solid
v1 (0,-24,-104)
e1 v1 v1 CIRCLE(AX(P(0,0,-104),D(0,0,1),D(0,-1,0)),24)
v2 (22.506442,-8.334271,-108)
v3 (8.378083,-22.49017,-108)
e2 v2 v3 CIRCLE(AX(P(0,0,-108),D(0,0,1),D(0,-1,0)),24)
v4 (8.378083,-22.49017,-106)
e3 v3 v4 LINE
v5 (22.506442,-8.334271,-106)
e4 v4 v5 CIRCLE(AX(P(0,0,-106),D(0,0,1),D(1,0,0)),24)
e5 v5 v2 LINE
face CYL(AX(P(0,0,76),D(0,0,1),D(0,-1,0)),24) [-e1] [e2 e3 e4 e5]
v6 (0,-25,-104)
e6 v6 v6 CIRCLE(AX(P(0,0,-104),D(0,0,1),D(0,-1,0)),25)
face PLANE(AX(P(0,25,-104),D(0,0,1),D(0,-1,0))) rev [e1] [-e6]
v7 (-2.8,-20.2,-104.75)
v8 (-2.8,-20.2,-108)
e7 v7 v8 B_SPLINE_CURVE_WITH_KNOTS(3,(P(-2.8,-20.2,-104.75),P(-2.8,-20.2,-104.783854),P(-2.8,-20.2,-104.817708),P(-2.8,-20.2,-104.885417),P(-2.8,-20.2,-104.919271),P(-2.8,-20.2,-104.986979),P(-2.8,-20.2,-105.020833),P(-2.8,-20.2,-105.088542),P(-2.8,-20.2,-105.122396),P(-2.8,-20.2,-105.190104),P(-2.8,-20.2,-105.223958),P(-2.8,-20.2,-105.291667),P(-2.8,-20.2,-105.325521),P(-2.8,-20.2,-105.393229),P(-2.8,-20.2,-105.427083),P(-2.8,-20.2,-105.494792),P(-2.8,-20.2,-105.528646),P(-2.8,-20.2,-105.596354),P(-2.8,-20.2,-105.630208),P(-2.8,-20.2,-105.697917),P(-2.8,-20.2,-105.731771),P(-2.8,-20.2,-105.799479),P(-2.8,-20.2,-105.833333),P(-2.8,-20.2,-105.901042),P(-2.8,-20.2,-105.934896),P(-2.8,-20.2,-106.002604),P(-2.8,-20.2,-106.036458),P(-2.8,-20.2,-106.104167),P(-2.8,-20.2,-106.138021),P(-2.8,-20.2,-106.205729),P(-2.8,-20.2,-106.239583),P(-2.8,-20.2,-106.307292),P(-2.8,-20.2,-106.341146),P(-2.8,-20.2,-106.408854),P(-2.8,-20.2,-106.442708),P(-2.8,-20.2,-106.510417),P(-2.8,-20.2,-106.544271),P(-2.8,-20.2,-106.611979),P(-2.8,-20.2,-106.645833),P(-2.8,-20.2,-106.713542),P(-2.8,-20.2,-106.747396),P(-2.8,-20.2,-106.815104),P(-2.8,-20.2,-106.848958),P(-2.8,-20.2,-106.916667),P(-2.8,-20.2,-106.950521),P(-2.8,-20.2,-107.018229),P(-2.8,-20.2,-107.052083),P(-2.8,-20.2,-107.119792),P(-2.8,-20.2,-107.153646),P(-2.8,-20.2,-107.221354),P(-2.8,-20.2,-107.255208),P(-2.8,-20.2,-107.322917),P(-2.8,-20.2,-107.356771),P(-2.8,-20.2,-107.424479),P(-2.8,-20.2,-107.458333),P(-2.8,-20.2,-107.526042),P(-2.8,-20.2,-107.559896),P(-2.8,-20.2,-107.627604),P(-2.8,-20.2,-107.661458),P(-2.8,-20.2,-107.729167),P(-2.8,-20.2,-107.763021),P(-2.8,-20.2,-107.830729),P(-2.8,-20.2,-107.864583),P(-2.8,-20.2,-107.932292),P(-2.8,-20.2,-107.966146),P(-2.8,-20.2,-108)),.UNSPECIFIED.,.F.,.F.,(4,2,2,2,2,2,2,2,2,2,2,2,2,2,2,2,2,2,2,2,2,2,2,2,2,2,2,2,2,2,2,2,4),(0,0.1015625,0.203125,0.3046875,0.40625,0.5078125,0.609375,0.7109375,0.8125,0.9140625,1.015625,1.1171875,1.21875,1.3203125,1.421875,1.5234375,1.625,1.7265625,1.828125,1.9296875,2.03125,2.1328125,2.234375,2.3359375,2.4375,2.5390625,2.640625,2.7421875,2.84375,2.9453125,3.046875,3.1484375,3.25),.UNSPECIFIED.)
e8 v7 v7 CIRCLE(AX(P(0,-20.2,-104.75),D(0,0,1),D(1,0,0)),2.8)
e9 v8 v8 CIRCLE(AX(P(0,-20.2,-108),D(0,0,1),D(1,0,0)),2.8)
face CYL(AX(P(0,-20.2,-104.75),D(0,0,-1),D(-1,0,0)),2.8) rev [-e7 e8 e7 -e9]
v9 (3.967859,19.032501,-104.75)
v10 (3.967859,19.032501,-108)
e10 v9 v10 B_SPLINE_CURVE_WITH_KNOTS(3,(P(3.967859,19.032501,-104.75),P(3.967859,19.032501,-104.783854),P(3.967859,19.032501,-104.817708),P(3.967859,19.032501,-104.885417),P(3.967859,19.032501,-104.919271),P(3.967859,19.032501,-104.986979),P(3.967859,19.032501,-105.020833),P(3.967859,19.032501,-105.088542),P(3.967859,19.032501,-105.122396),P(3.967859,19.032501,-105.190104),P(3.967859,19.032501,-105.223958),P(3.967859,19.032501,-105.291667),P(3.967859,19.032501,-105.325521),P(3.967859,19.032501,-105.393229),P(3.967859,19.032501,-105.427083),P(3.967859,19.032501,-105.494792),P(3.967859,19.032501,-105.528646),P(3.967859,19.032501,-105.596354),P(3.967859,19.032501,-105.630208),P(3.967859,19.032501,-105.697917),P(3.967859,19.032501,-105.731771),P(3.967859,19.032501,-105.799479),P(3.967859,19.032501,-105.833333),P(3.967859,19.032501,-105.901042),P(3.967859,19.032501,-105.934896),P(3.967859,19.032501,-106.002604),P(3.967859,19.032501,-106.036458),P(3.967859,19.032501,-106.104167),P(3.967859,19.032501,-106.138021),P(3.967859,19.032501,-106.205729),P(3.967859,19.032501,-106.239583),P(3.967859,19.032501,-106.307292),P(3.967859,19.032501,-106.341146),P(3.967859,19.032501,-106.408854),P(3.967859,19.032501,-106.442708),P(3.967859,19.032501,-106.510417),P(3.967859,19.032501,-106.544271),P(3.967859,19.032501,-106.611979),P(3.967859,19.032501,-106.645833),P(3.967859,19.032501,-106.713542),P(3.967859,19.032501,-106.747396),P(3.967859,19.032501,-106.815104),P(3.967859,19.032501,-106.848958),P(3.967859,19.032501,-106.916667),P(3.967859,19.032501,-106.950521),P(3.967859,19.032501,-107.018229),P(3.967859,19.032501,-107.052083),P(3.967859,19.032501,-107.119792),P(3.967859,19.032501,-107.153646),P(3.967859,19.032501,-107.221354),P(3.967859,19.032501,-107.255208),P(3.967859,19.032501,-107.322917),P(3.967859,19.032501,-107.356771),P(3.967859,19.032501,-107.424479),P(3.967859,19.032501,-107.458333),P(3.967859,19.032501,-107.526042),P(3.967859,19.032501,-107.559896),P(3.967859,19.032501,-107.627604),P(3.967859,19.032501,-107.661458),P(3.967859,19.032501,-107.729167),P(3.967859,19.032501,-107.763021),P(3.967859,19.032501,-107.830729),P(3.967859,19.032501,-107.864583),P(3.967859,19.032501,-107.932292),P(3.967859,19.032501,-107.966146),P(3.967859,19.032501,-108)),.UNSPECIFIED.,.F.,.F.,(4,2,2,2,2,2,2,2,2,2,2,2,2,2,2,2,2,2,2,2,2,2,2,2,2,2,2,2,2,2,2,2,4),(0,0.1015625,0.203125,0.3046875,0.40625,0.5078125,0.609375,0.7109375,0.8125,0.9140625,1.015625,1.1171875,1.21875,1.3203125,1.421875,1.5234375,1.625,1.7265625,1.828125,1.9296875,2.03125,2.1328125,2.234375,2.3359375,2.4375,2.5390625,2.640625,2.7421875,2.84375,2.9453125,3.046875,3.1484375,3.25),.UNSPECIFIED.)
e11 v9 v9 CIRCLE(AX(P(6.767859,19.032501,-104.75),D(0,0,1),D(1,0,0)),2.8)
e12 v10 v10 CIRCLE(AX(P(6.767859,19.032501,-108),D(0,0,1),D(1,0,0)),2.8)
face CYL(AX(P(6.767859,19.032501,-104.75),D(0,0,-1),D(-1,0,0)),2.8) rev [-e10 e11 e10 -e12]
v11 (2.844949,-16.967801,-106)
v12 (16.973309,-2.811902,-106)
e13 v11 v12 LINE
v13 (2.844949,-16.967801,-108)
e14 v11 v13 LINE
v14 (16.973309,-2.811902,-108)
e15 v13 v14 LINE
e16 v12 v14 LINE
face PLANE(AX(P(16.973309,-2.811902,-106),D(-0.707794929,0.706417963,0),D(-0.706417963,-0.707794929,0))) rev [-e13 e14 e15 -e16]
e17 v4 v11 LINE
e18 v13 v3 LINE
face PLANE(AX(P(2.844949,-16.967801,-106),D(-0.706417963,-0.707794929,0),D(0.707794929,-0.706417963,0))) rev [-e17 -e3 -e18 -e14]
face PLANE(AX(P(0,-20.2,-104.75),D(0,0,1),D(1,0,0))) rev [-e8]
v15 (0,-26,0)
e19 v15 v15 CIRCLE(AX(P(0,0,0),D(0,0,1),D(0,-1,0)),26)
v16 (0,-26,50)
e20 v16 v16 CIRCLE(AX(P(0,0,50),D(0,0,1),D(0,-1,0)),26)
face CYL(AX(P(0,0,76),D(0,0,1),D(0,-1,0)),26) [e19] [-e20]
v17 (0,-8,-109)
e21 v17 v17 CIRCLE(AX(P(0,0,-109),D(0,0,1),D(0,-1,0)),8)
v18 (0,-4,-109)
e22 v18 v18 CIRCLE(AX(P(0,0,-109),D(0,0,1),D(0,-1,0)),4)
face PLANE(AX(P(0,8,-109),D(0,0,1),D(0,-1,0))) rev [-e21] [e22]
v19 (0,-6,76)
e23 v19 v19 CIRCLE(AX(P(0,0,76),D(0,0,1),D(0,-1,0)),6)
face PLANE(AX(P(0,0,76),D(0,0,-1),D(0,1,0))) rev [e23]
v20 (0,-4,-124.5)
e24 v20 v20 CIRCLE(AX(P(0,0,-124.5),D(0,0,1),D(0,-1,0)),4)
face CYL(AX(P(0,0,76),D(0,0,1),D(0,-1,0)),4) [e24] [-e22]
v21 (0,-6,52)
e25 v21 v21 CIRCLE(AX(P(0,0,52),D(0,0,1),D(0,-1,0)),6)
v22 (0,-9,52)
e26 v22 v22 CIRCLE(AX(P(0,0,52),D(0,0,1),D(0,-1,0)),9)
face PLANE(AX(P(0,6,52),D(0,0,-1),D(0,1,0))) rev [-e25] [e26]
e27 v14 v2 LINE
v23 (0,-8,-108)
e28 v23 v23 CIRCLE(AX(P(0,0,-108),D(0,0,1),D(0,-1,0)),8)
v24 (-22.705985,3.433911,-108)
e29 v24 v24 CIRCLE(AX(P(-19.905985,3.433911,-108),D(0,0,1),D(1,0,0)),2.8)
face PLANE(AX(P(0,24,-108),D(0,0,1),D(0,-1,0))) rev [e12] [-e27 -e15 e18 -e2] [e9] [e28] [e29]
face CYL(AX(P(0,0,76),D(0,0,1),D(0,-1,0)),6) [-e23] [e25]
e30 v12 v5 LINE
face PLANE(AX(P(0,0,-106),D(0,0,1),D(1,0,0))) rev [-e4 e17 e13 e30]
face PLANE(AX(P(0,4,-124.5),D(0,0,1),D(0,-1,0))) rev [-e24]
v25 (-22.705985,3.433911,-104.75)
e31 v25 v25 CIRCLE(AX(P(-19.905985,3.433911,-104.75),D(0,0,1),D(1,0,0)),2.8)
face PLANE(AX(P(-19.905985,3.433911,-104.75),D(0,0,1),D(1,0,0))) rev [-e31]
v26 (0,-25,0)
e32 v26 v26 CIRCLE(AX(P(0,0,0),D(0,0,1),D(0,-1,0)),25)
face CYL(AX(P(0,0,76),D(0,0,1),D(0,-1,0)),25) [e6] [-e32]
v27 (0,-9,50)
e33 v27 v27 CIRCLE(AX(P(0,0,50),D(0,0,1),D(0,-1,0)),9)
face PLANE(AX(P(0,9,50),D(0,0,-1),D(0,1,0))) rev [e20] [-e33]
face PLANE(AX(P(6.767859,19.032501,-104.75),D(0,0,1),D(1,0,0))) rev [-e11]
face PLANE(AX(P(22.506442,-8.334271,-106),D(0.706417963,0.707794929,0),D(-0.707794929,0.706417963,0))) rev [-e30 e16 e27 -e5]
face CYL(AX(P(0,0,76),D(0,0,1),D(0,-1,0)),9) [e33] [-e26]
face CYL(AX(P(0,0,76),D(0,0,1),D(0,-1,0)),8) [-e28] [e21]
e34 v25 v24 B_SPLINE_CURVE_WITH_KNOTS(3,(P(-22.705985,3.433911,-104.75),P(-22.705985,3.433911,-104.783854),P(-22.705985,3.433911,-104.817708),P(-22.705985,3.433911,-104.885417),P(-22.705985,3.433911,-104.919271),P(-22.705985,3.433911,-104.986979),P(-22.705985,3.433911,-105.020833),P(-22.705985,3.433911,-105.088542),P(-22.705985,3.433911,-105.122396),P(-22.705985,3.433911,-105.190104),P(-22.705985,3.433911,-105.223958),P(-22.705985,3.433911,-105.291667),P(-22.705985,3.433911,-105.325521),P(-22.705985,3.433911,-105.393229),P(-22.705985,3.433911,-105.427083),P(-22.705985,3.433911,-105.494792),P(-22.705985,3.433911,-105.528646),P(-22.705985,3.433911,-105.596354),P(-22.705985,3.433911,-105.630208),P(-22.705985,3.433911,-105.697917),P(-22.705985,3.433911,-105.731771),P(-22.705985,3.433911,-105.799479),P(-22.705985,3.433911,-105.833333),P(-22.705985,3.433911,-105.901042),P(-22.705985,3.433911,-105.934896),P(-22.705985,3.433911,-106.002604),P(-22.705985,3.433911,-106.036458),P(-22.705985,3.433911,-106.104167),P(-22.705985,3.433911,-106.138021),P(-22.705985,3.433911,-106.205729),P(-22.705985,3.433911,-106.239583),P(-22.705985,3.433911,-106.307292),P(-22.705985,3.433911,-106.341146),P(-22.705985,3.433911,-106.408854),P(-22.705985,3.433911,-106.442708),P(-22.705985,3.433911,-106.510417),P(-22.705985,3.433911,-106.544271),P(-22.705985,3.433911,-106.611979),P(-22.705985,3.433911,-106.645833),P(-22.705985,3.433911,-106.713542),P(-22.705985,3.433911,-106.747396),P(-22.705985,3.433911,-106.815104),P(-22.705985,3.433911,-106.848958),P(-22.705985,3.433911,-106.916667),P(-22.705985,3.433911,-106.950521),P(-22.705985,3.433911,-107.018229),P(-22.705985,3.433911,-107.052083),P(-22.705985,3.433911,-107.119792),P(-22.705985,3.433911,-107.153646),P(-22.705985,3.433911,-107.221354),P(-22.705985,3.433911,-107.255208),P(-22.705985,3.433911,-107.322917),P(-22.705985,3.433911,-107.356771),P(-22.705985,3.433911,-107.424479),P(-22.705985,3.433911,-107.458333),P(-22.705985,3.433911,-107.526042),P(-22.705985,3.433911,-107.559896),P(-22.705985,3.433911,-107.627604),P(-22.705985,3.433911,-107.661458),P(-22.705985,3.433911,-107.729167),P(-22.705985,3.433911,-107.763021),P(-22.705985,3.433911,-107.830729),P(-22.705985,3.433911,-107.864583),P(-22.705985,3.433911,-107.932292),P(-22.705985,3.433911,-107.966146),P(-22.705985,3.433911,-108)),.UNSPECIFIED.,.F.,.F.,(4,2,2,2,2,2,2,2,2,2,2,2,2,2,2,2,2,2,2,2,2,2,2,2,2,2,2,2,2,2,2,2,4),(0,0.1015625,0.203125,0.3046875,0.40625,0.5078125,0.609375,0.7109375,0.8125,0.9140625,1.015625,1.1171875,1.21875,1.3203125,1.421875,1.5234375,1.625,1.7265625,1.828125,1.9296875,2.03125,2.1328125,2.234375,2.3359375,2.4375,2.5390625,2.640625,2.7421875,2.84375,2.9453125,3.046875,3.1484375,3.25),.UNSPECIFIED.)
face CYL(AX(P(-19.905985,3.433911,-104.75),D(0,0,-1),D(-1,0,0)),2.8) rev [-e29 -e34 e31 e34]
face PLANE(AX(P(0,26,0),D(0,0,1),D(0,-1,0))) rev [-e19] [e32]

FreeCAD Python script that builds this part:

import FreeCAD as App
import Part
import Sketcher

V = App.Vector
Q = App.Units.Quantity


def add_polygon(sketch, points):
    """Adds a closed chain of lines whose ends are joined by coincident constraints."""
    first, n = sketch.GeometryCount, len(points)
    for a, b in zip(points, points[1:] + points[:1]):
        sketch.addGeometry(Part.LineSegment(App.Vector(*a, 0), App.Vector(*b, 0)), False)
    for i in range(n):
        sketch.addConstraint(Sketcher.Constraint("Coincident", first + i, 2, first + (i + 1) % n, 1))

doc = App.newDocument("Part")
params = doc.addObject("Spreadsheet::Sheet", "Params")
for row, (alias, value) in enumerate([
    ("sketch1_width", "4 mm"),
    ("sketch1_width2", "16 mm"),
    ("sketch1_width3", "1 mm"),
    ("sketch1_width4", "17 mm"),
    ("sketch1_width5", "3 mm"),
    ("revolution_angle", "360 deg"),
    ("sketch2_diameter", "5.6 mm"),
    ("pocket1_length", "3.25 mm"),
    ("sketch3_length", "20 mm"),
    ("pocket2_length", "2 mm"),
], start=1):
    params.set(f"A{row}", alias)
    params.set(f"B{row}", "=" + value)
    params.setAlias(f"B{row}", alias)

body = doc.addObject("PartDesign::Body", "Body")

sketch1 = body.newObject("Sketcher::SketchObject", "Sketch")
sketch1.AttachmentSupport = (doc.getObject("YZ_Plane"), [""])
sketch1.MapMode = "FlatFace"
add_polygon(sketch1, [(0, 76), (0, -124.5), (4, -124.5), (4, -109), (8, -109), (8, -108), (24, -108), (24, -104), (25, -104), (25, 0), (26, 0), (26, 50), (9, 50), (9, 52), (6, 52), (6, 76)])
sketch1.addConstraint(Sketcher.Constraint("Vertical", 0))
sketch1.addConstraint(Sketcher.Constraint("Horizontal", 1))
sketch1.addConstraint(Sketcher.Constraint("Vertical", 2))
sketch1.addConstraint(Sketcher.Constraint("Horizontal", 3))
sketch1.addConstraint(Sketcher.Constraint("Vertical", 4))
sketch1.addConstraint(Sketcher.Constraint("Horizontal", 5))
sketch1.addConstraint(Sketcher.Constraint("Vertical", 6))
sketch1.addConstraint(Sketcher.Constraint("Horizontal", 7))
sketch1.addConstraint(Sketcher.Constraint("Vertical", 8))
sketch1.addConstraint(Sketcher.Constraint("Horizontal", 9))
sketch1.addConstraint(Sketcher.Constraint("Vertical", 10))
sketch1.addConstraint(Sketcher.Constraint("Horizontal", 11))
sketch1.addConstraint(Sketcher.Constraint("Vertical", 12))
sketch1.addConstraint(Sketcher.Constraint("Horizontal", 13))
sketch1.addConstraint(Sketcher.Constraint("Vertical", 14))
sketch1.addConstraint(Sketcher.Constraint("Horizontal", 15))
sketch1.addConstraint(Sketcher.Constraint("PointOnObject", 0, 2, -2))
sketch1.addConstraint(Sketcher.Constraint("PointOnObject", 8, 2, -1))
sketch1.addConstraint(Sketcher.Constraint("Equal", 1, 3))
sketch1.addConstraint(Sketcher.Constraint("Equal", 7, 9))
sketch1.addConstraint(Sketcher.Constraint("Equal", 9, 4))
sketch1.addConstraint(Sketcher.Constraint("Equal", 3, 6))
sketch1.addConstraint(Sketcher.Constraint("DistanceX", 1, 1, 1, 2, Q("4 mm")))
sketch1.addConstraint(Sketcher.Constraint("DistanceX", 5, 1, 5, 2, Q("16 mm")))
sketch1.addConstraint(Sketcher.Constraint("DistanceX", 7, 1, 7, 2, Q("1 mm")))
sketch1.addConstraint(Sketcher.Constraint("DistanceX", 11, 2, 11, 1, Q("17 mm")))
sketch1.addConstraint(Sketcher.Constraint("DistanceX", 13, 2, 13, 1, Q("3 mm")))
sketch1.addConstraint(Sketcher.Constraint("DistanceY", 8, 1, 8, 2, Q("104 mm")))
sketch1.addConstraint(Sketcher.Constraint("DistanceY", 10, 1, 10, 2, Q("50 mm")))
sketch1.addConstraint(Sketcher.Constraint("DistanceY", 12, 1, 12, 2, Q("2 mm")))
sketch1.addConstraint(Sketcher.Constraint("DistanceY", 14, 1, 14, 2, Q("24 mm")))
sketch1.addConstraint(Sketcher.Constraint("DistanceY", 0, 2, 0, 1, Q("200.5 mm")))
sketch1.setExpression("Constraints[38]", "Params.sketch1_width")
sketch1.setExpression("Constraints[39]", "Params.sketch1_width2")
sketch1.setExpression("Constraints[40]", "Params.sketch1_width3")
sketch1.setExpression("Constraints[41]", "Params.sketch1_width4")
sketch1.setExpression("Constraints[42]", "Params.sketch1_width5")
revolution = body.newObject("PartDesign::Revolution", "Revolution")
revolution.Profile = sketch1
revolution.ReferenceAxis = (sketch1, ["V_Axis"])
revolution.setExpression("Angle", "Params.revolution_angle")

sketch2 = body.newObject("Sketcher::SketchObject", "Sketch001")
sketch2.AttachmentSupport = (doc.getObject("XY_Plane"), [""])
sketch2.MapMode = "FlatFace"
sketch2.AttachmentOffset = App.Placement(V(0, 0, -108), App.Rotation())
sketch2.addGeometry(Part.Circle(V(6.767859, 19.032501, 0), V(0, 0, 1), 2.8), False)
sketch2.addGeometry(Part.Circle(V(-19.905985, 3.433911, 0), V(0, 0, 1), 2.8), False)
sketch2.addGeometry(Part.Circle(V(0, -20.2, 0), V(0, 0, 1), 2.8), False)
sketch2.addConstraint(Sketcher.Constraint("Equal", 0, 1))
sketch2.addConstraint(Sketcher.Constraint("Equal", 1, 2))
sketch2.addConstraint(Sketcher.Constraint("PointOnObject", 2, 3, -2))
sketch2.addConstraint(Sketcher.Constraint("Diameter", 0, Q("5.6 mm")))
sketch2.addConstraint(Sketcher.Constraint("DistanceY", 2, 3, -1, 1, Q("20.2 mm")))
sketch2.addConstraint(Sketcher.Constraint("DistanceY", -1, 1, 0, 3, Q("19.032501 mm")))
sketch2.addConstraint(Sketcher.Constraint("DistanceX", -1, 1, 0, 3, Q("6.767859 mm")))
sketch2.addConstraint(Sketcher.Constraint("DistanceY", -1, 1, 1, 3, Q("3.433911 mm")))
sketch2.addConstraint(Sketcher.Constraint("DistanceX", 1, 3, -1, 1, Q("19.905985 mm")))
sketch2.setExpression("Constraints[3]", "Params.sketch2_diameter")
pocket1 = body.newObject("PartDesign::Pocket", "Pocket")
pocket1.Profile = sketch2
pocket1.setExpression("Length", "Params.pocket1_length")
pocket1.Reversed = True

sketch3 = body.newObject("Sketcher::SketchObject", "Sketch002")
sketch3.AttachmentSupport = (doc.getObject("XY_Plane"), [""])
sketch3.MapMode = "FlatFace"
sketch3.AttachmentOffset = App.Placement(V(0, 0, -108), App.Rotation())
add_polygon(sketch3, [(16.973309, -2.811902), (22.506442, -8.334271), (25.466848, -11.288918), (11.338489, -25.444816), (8.378083, -22.49017), (2.844949, -16.967801)])
sketch3.addConstraint(Sketcher.Constraint("Parallel", 0, 1))
sketch3.addConstraint(Sketcher.Constraint("Perpendicular", 1, 2))
sketch3.addConstraint(Sketcher.Constraint("Perpendicular", 2, 3))
sketch3.addConstraint(Sketcher.Constraint("Parallel", 3, 4))
sketch3.addConstraint(Sketcher.Constraint("Perpendicular", 4, 5))
sketch3.addConstraint(Sketcher.Constraint("Equal", 1, 3))
sketch3.addConstraint(Sketcher.Constraint("Distance", 2, Q("20 mm")))
sketch3.addConstraint(Sketcher.Constraint("DistanceY", 4, 2, -1, 1, Q("16.967801 mm")))
sketch3.addConstraint(Sketcher.Constraint("DistanceY", 2, 2, 1, 2, Q("14.155899 mm")))
sketch3.addConstraint(Sketcher.Constraint("DistanceX", 4, 2, 1, 2, Q("22.621898 mm")))
sketch3.addConstraint(Sketcher.Constraint("DistanceX", -1, 1, 0, 2, Q("22.506442 mm")))
sketch3.addConstraint(Sketcher.Constraint("DistanceY", 0, 2, -1, 1, Q("8.334271 mm")))
sketch3.setExpression("Constraints[12]", "Params.sketch3_length")
pocket2 = body.newObject("PartDesign::Pocket", "Pocket001")
pocket2.Profile = sketch3
pocket2.setExpression("Length", "Params.pocket2_length")
pocket2.Reversed = True

doc.recompute()
